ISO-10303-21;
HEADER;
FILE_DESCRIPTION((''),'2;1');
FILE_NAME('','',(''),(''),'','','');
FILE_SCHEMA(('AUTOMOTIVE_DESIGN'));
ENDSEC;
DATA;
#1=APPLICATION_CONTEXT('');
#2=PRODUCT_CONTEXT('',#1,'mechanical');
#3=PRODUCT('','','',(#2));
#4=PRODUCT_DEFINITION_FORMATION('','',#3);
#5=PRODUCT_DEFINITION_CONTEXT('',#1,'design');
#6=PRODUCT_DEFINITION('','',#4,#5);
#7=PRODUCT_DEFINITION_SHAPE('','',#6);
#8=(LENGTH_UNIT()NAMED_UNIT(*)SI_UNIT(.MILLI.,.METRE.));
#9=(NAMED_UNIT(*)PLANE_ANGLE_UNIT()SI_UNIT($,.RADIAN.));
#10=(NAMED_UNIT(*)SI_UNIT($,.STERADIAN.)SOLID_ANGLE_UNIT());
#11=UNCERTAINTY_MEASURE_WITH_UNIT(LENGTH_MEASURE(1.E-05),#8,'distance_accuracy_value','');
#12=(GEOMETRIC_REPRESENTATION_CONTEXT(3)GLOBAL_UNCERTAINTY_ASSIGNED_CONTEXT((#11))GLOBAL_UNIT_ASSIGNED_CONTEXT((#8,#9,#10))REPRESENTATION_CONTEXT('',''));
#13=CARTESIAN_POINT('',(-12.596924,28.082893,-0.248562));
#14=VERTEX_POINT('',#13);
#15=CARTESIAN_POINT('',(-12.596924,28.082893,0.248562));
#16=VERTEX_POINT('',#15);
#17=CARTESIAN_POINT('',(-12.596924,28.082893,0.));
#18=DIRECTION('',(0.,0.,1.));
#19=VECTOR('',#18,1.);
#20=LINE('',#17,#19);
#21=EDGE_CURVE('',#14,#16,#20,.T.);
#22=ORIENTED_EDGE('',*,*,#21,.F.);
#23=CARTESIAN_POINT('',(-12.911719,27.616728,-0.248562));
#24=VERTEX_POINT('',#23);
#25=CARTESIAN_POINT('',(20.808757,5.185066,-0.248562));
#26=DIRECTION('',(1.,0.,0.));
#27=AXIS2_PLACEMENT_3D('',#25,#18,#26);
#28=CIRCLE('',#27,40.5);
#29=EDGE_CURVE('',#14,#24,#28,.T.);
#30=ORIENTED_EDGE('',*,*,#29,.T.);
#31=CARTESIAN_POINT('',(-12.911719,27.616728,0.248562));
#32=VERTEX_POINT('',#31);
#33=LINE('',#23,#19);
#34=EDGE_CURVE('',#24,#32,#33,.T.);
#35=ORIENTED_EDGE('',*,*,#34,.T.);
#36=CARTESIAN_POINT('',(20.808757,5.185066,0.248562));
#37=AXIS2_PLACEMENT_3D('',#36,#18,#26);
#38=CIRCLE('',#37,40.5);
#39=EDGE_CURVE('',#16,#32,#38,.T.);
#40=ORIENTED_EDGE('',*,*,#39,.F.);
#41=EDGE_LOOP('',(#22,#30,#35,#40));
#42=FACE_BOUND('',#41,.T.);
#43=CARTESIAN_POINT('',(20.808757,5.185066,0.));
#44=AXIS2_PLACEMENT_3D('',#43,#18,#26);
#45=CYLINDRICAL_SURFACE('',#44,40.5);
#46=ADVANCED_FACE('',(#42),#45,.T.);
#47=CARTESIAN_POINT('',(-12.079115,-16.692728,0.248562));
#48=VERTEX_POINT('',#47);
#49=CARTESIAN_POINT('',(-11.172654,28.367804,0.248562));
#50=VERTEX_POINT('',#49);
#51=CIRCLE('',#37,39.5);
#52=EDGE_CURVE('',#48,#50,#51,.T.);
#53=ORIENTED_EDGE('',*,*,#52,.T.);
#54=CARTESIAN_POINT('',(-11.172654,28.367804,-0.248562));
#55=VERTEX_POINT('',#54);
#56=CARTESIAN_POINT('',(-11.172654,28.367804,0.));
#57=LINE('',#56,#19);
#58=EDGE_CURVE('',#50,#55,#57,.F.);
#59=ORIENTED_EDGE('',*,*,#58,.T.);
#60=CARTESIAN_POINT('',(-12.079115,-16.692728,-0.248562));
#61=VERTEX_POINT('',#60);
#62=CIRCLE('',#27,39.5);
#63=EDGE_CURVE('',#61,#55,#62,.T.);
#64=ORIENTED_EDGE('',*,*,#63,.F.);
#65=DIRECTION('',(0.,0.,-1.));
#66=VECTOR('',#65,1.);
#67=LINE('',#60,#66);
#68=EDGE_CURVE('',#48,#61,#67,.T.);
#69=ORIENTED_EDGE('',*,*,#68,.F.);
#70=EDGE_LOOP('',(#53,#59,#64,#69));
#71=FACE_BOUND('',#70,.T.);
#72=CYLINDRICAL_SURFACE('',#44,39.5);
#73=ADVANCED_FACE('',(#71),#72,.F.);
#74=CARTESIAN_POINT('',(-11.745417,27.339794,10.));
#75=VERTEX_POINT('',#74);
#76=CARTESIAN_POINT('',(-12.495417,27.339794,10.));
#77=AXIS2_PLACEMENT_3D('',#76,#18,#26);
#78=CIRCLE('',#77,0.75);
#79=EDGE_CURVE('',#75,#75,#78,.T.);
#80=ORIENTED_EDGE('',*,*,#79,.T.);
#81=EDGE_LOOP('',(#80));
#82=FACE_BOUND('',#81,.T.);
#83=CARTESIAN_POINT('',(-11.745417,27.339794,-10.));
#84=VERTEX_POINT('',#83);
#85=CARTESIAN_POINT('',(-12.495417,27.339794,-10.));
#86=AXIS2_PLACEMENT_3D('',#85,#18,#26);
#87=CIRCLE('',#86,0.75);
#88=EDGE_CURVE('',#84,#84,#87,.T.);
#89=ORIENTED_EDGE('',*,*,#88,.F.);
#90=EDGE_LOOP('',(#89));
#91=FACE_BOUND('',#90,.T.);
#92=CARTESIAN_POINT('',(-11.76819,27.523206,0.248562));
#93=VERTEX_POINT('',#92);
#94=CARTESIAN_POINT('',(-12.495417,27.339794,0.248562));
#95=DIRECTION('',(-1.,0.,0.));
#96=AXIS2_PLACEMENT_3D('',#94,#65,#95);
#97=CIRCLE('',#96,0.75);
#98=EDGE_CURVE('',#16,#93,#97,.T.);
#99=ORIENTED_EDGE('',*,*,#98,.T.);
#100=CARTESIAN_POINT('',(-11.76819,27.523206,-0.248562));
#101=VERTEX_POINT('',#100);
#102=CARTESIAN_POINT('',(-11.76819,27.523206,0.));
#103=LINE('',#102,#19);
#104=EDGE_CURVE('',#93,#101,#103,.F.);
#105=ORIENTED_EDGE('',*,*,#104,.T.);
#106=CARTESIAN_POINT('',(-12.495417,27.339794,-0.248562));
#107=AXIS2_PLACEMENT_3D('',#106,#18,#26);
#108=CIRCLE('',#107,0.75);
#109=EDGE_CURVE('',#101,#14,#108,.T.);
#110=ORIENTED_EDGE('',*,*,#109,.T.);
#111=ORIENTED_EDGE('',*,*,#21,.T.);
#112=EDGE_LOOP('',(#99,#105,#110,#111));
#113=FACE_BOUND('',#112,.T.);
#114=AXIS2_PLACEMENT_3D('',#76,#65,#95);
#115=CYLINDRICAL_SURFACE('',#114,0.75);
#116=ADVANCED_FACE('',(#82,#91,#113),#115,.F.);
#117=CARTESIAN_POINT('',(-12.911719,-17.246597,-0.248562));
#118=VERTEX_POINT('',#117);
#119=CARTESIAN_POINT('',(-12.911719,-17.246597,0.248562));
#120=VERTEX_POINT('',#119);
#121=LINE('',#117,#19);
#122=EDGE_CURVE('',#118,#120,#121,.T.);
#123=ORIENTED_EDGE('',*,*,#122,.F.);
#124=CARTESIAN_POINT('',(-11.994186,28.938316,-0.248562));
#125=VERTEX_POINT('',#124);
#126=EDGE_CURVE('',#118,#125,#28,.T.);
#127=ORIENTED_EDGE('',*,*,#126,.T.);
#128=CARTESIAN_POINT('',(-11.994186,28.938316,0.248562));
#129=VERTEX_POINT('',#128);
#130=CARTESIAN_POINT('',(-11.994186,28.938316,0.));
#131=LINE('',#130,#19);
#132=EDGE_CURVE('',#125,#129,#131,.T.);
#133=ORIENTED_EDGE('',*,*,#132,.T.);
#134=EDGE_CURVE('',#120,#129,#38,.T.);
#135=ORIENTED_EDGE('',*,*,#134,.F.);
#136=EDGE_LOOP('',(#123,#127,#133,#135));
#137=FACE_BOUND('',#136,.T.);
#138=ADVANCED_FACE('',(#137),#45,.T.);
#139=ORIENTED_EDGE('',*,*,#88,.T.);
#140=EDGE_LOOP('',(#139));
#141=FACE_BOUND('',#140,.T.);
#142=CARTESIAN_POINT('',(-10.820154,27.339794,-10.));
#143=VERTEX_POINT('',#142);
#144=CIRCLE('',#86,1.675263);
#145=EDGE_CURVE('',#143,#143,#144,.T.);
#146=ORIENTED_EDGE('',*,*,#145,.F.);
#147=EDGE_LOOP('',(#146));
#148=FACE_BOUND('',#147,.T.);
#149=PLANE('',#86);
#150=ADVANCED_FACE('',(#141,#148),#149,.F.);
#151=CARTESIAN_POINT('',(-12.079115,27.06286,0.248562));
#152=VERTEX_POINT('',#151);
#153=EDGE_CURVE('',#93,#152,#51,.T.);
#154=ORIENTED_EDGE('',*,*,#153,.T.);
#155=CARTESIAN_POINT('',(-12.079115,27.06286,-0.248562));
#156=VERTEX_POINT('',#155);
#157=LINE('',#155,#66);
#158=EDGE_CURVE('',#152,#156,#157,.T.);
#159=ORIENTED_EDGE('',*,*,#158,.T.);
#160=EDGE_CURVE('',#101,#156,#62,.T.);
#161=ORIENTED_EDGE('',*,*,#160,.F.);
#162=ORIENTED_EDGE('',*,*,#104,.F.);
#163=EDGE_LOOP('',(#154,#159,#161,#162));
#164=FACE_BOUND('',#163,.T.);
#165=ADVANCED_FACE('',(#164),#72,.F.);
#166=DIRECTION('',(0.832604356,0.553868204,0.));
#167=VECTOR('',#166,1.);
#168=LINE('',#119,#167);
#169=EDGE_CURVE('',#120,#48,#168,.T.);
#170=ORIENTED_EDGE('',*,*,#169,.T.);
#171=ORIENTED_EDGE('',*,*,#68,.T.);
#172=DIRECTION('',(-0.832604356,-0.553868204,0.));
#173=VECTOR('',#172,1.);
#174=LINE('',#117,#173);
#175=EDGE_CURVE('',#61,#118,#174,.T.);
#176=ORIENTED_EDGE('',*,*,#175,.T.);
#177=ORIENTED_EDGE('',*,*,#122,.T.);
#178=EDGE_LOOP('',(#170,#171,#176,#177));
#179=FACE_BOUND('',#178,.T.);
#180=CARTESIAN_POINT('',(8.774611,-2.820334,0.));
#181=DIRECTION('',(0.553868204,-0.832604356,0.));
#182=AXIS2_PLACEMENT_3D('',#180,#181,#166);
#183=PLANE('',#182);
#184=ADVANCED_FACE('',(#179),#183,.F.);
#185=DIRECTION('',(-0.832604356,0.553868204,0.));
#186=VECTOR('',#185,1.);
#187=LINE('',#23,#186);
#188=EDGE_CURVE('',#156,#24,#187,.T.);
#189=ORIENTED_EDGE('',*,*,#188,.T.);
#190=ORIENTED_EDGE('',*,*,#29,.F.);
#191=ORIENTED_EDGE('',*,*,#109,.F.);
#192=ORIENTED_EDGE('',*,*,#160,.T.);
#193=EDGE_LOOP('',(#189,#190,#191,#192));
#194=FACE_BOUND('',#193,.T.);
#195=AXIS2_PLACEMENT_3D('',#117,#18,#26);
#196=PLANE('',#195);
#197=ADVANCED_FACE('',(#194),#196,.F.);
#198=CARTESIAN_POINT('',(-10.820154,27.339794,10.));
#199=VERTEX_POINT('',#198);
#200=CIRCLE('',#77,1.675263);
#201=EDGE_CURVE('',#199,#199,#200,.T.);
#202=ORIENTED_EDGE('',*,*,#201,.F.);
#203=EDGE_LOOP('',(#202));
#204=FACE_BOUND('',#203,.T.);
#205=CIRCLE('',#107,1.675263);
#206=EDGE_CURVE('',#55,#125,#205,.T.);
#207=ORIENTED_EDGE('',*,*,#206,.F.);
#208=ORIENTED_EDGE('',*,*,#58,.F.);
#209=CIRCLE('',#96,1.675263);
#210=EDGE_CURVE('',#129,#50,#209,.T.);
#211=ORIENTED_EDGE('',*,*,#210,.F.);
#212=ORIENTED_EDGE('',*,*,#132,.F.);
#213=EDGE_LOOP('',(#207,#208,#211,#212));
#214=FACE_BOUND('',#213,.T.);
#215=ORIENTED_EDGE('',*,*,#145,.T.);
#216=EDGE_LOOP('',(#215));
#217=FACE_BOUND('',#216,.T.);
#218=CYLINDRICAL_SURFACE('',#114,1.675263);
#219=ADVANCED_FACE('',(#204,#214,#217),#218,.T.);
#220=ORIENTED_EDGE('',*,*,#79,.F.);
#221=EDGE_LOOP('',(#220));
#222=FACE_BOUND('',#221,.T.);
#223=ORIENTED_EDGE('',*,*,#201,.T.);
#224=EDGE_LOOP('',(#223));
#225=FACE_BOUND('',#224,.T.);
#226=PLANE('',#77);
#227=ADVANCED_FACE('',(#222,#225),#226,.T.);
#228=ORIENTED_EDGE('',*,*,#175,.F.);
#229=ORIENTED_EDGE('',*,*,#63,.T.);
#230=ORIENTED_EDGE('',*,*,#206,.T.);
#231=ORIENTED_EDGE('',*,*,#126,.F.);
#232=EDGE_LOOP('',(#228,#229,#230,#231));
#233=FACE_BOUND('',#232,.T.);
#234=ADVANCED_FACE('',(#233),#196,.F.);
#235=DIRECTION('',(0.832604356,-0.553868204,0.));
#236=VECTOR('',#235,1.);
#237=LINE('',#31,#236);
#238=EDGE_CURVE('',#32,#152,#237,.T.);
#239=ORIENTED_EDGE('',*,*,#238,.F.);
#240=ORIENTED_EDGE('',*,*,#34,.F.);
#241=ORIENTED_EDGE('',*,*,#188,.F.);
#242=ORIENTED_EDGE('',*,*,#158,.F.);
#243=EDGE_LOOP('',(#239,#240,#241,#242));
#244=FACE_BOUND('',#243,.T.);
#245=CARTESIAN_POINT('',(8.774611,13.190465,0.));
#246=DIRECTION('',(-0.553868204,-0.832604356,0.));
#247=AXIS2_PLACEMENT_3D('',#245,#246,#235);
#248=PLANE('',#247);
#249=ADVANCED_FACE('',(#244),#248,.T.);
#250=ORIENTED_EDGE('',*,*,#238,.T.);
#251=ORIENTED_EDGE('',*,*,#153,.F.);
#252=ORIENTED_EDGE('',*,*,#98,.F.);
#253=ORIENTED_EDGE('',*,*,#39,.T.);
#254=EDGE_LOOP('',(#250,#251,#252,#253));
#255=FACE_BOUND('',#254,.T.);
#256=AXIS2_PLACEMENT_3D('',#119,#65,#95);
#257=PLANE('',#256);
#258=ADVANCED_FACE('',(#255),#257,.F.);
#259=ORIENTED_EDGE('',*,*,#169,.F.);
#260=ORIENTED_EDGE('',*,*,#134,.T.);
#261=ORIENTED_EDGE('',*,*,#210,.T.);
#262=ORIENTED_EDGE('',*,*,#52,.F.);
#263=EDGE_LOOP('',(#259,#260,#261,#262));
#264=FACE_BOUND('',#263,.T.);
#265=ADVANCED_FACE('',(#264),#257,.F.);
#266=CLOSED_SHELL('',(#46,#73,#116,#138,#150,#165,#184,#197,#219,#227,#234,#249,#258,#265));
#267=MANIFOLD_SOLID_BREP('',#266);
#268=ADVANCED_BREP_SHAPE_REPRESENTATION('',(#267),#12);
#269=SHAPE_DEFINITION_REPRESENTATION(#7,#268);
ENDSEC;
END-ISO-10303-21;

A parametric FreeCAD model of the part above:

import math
import FreeCAD as App
import Part
import Sketcher
from FreeCAD import Vector
Q = App.Units.Quantity

doc = App.newDocument("Part")
body = doc.addObject("PartDesign::Body", "Body")

sketch1 = body.newObject("Sketcher::SketchObject", "Sketch")
sketch1.AttachmentSupport = (doc.getObject("XY_Plane"), [""])
sketch1.MapMode = "FlatFace"
sketch1.addGeometry([
    Part.Circle(Vector(-12.5, 27.3, 0), Vector(0, 0, 1), 1.7),
    Part.Circle(Vector(-12.5, 27.3, 0), Vector(0, 0, 1), 0.8),
], False)
sketch1.addConstraint([
    Sketcher.Constraint("Coincident", 1, 3, 0, 3),
    Sketcher.Constraint("Diameter", 1, Q("1.5 mm")),
    Sketcher.Constraint("Diameter", 0, Q("3.350527 mm")),
    Sketcher.Constraint("DistanceX", 0, 3, -1, 1, Q("12.495417 mm")),
    Sketcher.Constraint("DistanceY", -1, 1, 0, 3, Q("27.339794 mm")),
])
pad1 = body.newObject("PartDesign::Pad", "Pad")
pad1.Profile = sketch1
pad1.Length = 20
pad1.Midplane = True

sketch2 = body.newObject("Sketcher::SketchObject", "Sketch001")
sketch2.Placement = App.Placement(Vector(-12.495417, 27.339794, 0), App.Rotation(Vector(0, 0, 1), Vector(0.832604356, -0.553868204, 0), Vector(0.553868204, 0.832604356, 0), "ZXY"))
sketch2.addGeometry([
    Part.LineSegment(Vector(-0.25, 0.5, 0), Vector(-0.25, -0.5, 0)),
    Part.LineSegment(Vector(-0.25, -0.5, 0), Vector(0.25, -0.5, 0)),
    Part.LineSegment(Vector(0.25, -0.5, 0), Vector(0.25, 0.5, 0)),
    Part.LineSegment(Vector(0.25, 0.5, 0), Vector(-0.25, 0.5, 0)),
], False)
sketch2.addConstraint([
    Sketcher.Constraint("Coincident", 0, 2, 1, 1),
    Sketcher.Constraint("Coincident", 1, 2, 2, 1),
    Sketcher.Constraint("Coincident", 2, 2, 3, 1),
    Sketcher.Constraint("Coincident", 3, 2, 0, 1),
    Sketcher.Constraint("Vertical", 0),
    Sketcher.Constraint("Horizontal", 1),
    Sketcher.Constraint("Vertical", 2),
    Sketcher.Constraint("Horizontal", 3),
    Sketcher.Constraint("Symmetric", 0, 2, 2, 2, -1, 1),
    Sketcher.Constraint("DistanceY", 0, 2, 0, 1, Q("1 mm")),
    Sketcher.Constraint("DistanceX", 1, 1, 1, 2, Q("0.497125 mm")),
])

sketch3 = body.newObject("Sketcher::SketchObject", "Sketch002")
sketch3.AttachmentSupport = (doc.getObject("XY_Plane"), [""])
sketch3.MapMode = "FlatFace"
sketch3.addGeometry(Part.ArcOfCircle(Part.Circle(Vector(21, 5, 0), Vector(0, 0, 1), 40), math.radians(-146), math.radians(146)), False)
sketch3.addConstraint([
    Sketcher.Constraint("Radius", 0, Q("40 mm")),
    Sketcher.Constraint("DistanceY", 0, 1, 0, 3, Q("22.154728 mm")),
    Sketcher.Constraint("DistanceY", 0, 3, 0, 2, Q("22.154728 mm")),
    Sketcher.Constraint("DistanceX", -1, 1, 0, 3, Q("20.808757 mm")),
    Sketcher.Constraint("DistanceY", -1, 1, 0, 3, Q("5.185066 mm")),
])
doc.recompute()

additivepipe = body.newObject("PartDesign::AdditivePipe", "AdditivePipe")
additivepipe.Profile = sketch2
additivepipe.Spine = (sketch3, ["Edge1"])

doc.recompute()
